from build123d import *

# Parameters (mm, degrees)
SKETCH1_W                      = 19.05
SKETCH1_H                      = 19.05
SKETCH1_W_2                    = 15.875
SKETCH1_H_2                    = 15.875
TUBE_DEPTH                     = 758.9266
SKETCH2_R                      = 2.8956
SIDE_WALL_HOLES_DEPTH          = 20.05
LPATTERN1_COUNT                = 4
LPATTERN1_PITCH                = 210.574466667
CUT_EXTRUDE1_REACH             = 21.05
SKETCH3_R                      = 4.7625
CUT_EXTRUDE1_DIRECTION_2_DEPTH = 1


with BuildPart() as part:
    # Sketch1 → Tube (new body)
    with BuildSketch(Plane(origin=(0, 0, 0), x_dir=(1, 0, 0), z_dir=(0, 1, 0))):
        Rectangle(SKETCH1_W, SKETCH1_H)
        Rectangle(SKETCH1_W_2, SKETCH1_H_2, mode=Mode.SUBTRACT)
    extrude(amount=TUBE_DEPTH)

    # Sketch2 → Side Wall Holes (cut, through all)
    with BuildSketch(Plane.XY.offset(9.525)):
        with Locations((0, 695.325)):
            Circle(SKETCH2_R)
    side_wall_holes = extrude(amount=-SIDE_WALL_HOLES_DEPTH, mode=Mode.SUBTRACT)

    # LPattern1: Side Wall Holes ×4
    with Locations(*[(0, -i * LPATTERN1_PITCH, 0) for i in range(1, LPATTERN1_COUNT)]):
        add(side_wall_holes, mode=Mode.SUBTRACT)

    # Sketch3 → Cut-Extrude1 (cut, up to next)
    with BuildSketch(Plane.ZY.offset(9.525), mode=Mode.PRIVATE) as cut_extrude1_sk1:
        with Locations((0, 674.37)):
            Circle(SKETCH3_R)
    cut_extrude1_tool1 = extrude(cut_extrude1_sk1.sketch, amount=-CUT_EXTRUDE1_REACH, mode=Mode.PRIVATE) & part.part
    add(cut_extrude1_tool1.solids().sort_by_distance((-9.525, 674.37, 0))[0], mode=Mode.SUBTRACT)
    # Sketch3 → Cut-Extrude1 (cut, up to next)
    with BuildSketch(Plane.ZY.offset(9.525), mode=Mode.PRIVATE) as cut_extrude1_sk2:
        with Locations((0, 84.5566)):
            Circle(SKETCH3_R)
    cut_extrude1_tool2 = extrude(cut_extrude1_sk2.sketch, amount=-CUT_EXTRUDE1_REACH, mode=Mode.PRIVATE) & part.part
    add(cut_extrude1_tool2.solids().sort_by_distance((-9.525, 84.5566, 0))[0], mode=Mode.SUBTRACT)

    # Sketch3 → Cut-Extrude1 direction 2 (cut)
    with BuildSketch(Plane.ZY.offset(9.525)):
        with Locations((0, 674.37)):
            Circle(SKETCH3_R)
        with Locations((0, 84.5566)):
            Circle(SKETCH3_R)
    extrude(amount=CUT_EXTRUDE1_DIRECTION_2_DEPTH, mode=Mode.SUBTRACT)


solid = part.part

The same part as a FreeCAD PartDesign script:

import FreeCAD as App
import Part
import Sketcher
Q = App.Units.Quantity

doc = App.newDocument("Part")
body = doc.addObject("PartDesign::Body", "Body")

# Sketch on XZ plane
sketch1 = body.newObject("Sketcher::SketchObject", "Sketch")
sketch1.AttachmentSupport = (doc.getObject("XZ_Plane"), [""])
sketch1.MapMode = "FlatFace"
sketch1.addGeometry([
    Part.LineSegment(App.Vector(-10, -10, 0), App.Vector(-10, 10, 0)),  # 0
    Part.LineSegment(App.Vector(-10, 10, 0), App.Vector(10, 10, 0)),  # 1
    Part.LineSegment(App.Vector(10, 10, 0), App.Vector(10, -10, 0)),  # 2
    Part.LineSegment(App.Vector(10, -10, 0), App.Vector(-10, -10, 0)),  # 3
    Part.LineSegment(App.Vector(8, 8, 0), App.Vector(-8, 8, 0)),  # 4
    Part.LineSegment(App.Vector(-8, 8, 0), App.Vector(-8, -8, 0)),  # 5
    Part.LineSegment(App.Vector(-8, -8, 0), App.Vector(8, -8, 0)),  # 6
    Part.LineSegment(App.Vector(8, -8, 0), App.Vector(8, 8, 0)),  # 7
], False)
sketch1.addConstraint([
    Sketcher.Constraint("Coincident", 0, 2, 1, 1),
    Sketcher.Constraint("Coincident", 1, 2, 2, 1),
    Sketcher.Constraint("Coincident", 2, 2, 3, 1),
    Sketcher.Constraint("Coincident", 3, 2, 0, 1),
    Sketcher.Constraint("Coincident", 4, 2, 5, 1),
    Sketcher.Constraint("Coincident", 5, 2, 6, 1),
    Sketcher.Constraint("Coincident", 6, 2, 7, 1),
    Sketcher.Constraint("Coincident", 7, 2, 4, 1),
    Sketcher.Constraint("Vertical", 0),
    Sketcher.Constraint("Horizontal", 1),
    Sketcher.Constraint("Vertical", 2),
    Sketcher.Constraint("Horizontal", 3),
    Sketcher.Constraint("Horizontal", 4),
    Sketcher.Constraint("Vertical", 5),
    Sketcher.Constraint("Horizontal", 6),
    Sketcher.Constraint("Vertical", 7),
    Sketcher.Constraint("Symmetric", 0, 2, 2, 2, -1, 1),
    Sketcher.Constraint("Symmetric", 4, 2, 6, 2, -1, 1),
    Sketcher.Constraint("Equal", 3, 0),
    Sketcher.Constraint("Equal", 6, 5),
    Sketcher.Constraint("DistanceX", 1, 1, 1, 2, Q("0.75 in")),
    Sketcher.Constraint("DistanceX", 4, 2, 4, 1, Q("0.625 in")),
])
pad1 = body.newObject("PartDesign::Pad", "Pad")
pad1.Profile = sketch1
pad1.Length = Q("29.879 in")
pad1.Reversed = True

# Sketch on XY plane
sketch2 = body.newObject("Sketcher::SketchObject", "Sketch001")
sketch2.AttachmentSupport = (doc.getObject("XY_Plane"), [""])
sketch2.MapMode = "FlatFace"
sketch2.AttachmentOffset = App.Placement(App.Vector(0, 0, 0.375 * 25.4), App.Rotation())
sketch2.addGeometry(Part.Circle(App.Vector(0, 695.3, 0), App.Vector(0, 0, 1), 2.9), False)
sketch2.addConstraint([
    Sketcher.Constraint("PointOnObject", 0, 3, -2),
    Sketcher.Constraint("Diameter", 0, Q("0.228 in")),
    Sketcher.Constraint("DistanceY", -1, 1, 0, 3, Q("27.375 in")),
])
pocket1 = body.newObject("PartDesign::Pocket", "Pocket")
pocket1.Profile = sketch2
pocket1.Type = "ThroughAll"
doc.recompute()

linearpattern = body.newObject("PartDesign::LinearPattern", "LinearPattern")
linearpattern.Originals = [pocket1]
linearpattern.Direction = (doc.getObject("Y_Axis"), [""])
linearpattern.Mode = "offset"
linearpattern.Offset = 210.574467
linearpattern.Occurrences = 4
linearpattern.Reversed = True
body.Tip = linearpattern

# Sketch on YZ plane
sketch3 = body.newObject("Sketcher::SketchObject", "Sketch002")
sketch3.AttachmentSupport = (doc.getObject("YZ_Plane"), [""])
sketch3.MapMode = "FlatFace"
sketch3.AttachmentOffset = App.Placement(App.Vector(0, 0, -0.375 * 25.4), App.Rotation())
sketch3.addGeometry(Part.Circle(App.Vector(674.4, 0, 0), App.Vector(0, 0, 1), 4.8), False)
sketch3.addConstraint([
    Sketcher.Constraint("PointOnObject", 0, 3, -1),
    Sketcher.Constraint("Diameter", 0, Q("0.375 in")),
    Sketcher.Constraint("DistanceX", -1, 1, 0, 3, Q("26.55 in")),
])
pocket2 = body.newObject("PartDesign::Pocket", "Pocket001")
pocket2.Profile = sketch3
pocket2.Type = "UpToFirst"
pocket2.Reversed = True

# Sketch on YZ plane
sketch4 = body.newObject("Sketcher::SketchObject", "Sketch003")
sketch4.AttachmentSupport = (doc.getObject("YZ_Plane"), [""])
sketch4.MapMode = "FlatFace"
sketch4.AttachmentOffset = App.Placement(App.Vector(0, 0, -0.375 * 25.4), App.Rotation())
sketch4.addGeometry(Part.Circle(App.Vector(84.6, 0, 0), App.Vector(0, 0, 1), 4.8), False)
sketch4.addConstraint([
    Sketcher.Constraint("PointOnObject", 0, 3, -1),
    Sketcher.Constraint("Diameter", 0, Q("0.375 in")),
    Sketcher.Constraint("DistanceX", -1, 1, 0, 3, Q("3.329 in")),
])
pocket3 = body.newObject("PartDesign::Pocket", "Pocket002")
pocket3.Profile = sketch4
pocket3.Type = "UpToFirst"
pocket3.Reversed = True

# Sketch on YZ plane
sketch5 = body.newObject("Sketcher::SketchObject", "Sketch004")
sketch5.AttachmentSupport = (doc.getObject("YZ_Plane"), [""])
sketch5.MapMode = "FlatFace"
sketch5.AttachmentOffset = App.Placement(App.Vector(0, 0, -0.375 * 25.4), App.Rotation())
sketch5.addGeometry([
    Part.Circle(App.Vector(674.4, 0, 0), App.Vector(0, 0, 1), 4.8),
    Part.Circle(App.Vector(84.6, 0, 0), App.Vector(0, 0, 1), 4.8),
], False)
sketch5.addConstraint([
    Sketcher.Constraint("Equal", 0, 1),
    Sketcher.Constraint("PointOnObject", 0, 3, -1),
    Sketcher.Constraint("PointOnObject", 1, 3, -1),
    Sketcher.Constraint("Diameter", 0, Q("0.375 in")),
    Sketcher.Constraint("DistanceX", -1, 1, 0, 3, Q("26.55 in")),
    Sketcher.Constraint("DistanceX", -1, 1, 1, 3, Q("3.329 in")),
])
pocket4 = body.newObject("PartDesign::Pocket", "Pocket003")
pocket4.Profile = sketch5
pocket4.Length = 1

doc.recompute()
